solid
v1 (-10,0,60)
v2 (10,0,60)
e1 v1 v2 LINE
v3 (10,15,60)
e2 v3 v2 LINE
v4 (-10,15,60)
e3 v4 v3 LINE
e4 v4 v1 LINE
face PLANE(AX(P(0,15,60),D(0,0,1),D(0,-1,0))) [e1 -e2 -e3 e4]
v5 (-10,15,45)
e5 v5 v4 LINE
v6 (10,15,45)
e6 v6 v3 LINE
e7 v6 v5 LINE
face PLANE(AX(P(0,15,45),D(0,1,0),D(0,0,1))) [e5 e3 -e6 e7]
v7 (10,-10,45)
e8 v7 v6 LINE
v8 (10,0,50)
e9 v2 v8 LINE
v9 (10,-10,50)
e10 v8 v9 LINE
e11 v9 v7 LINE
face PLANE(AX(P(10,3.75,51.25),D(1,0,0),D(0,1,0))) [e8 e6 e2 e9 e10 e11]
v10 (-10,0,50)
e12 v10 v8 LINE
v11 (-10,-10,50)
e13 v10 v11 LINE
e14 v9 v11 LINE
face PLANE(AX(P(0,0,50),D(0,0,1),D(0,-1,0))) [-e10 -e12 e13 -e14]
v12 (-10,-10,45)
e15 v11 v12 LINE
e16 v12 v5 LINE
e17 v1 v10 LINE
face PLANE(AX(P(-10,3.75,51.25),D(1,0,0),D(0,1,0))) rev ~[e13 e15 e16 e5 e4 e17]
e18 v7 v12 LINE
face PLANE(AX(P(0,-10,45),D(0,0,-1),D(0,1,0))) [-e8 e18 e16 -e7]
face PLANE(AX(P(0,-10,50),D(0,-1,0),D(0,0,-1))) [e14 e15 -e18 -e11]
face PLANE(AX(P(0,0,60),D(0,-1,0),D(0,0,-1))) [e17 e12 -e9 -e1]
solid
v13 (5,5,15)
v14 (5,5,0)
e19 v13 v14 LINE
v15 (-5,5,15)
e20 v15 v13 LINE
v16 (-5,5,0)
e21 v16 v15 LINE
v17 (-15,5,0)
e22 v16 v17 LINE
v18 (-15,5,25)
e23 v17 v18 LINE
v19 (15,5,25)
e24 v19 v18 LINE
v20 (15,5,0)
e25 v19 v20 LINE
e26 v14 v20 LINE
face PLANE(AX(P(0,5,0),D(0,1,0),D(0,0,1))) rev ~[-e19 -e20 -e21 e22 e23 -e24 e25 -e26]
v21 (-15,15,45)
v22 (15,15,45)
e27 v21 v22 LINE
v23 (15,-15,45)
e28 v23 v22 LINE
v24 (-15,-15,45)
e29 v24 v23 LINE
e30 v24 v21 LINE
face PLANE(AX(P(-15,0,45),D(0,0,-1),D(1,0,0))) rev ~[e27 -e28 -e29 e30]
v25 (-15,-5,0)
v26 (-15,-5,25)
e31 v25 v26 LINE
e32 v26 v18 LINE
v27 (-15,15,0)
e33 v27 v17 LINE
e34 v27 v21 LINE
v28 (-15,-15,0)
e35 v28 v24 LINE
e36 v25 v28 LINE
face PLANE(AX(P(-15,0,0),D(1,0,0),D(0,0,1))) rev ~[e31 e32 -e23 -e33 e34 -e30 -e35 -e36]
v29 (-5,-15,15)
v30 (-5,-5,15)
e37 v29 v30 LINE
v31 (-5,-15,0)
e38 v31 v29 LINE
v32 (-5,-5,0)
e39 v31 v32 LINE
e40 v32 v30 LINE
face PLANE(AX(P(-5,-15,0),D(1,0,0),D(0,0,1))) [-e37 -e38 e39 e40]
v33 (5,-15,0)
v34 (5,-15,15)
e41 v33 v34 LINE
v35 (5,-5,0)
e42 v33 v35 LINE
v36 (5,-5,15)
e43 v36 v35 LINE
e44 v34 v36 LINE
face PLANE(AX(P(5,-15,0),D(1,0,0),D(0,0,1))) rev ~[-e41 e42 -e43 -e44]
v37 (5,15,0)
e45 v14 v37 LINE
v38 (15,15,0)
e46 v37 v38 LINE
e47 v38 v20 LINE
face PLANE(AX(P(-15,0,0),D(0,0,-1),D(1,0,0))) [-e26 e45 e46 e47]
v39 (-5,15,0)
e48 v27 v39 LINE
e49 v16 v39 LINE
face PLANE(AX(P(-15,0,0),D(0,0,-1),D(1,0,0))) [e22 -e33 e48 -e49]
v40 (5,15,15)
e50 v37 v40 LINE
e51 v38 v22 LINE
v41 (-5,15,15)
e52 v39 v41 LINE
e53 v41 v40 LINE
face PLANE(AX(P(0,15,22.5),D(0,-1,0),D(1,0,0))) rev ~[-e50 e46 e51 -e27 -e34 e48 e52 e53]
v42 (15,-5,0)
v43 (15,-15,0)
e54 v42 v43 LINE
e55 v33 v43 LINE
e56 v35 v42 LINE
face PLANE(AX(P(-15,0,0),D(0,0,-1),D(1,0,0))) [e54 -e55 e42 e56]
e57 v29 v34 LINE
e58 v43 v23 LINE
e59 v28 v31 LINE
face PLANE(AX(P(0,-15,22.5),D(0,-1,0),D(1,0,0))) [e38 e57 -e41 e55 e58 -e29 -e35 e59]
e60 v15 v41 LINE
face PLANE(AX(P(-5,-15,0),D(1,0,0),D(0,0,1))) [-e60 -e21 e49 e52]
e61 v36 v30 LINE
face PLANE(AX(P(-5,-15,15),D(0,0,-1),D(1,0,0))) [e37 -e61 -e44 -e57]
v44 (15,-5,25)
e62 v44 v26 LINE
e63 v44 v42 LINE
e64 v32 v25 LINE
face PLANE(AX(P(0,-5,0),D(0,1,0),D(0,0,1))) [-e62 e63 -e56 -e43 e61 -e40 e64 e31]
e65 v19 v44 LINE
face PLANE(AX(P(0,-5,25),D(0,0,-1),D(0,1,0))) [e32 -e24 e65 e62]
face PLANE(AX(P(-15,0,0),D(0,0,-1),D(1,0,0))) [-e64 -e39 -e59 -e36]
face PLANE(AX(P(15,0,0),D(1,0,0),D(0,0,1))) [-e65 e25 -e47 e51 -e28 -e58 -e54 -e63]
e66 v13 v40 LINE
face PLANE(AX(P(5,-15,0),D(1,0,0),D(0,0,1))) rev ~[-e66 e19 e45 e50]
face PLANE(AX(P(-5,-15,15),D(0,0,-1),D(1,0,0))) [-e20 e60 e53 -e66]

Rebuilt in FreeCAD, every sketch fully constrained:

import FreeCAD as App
import Part
import Sketcher
from FreeCAD import Vector

doc = App.newDocument("Part")
body = doc.addObject("PartDesign::Body", "Body")

# Sketch on XZ plane
sketch1 = doc.addObject("Sketcher::SketchObject", "Sketch")
body.addObject(sketch1)
sketch1.AttachmentSupport = (doc.XZ_Plane, [""])
sketch1.MapMode = "FlatFace"
sketch1.addGeometry([
    Part.LineSegment(Vector(-15, 45, 0), Vector(-15, 0, 0)),
    Part.LineSegment(Vector(-15, 0, 0), Vector(15, 0, 0)),
    Part.LineSegment(Vector(15, 0, 0), Vector(15, 45, 0)),
    Part.LineSegment(Vector(15, 45, 0), Vector(-15, 45, 0)),
], False)
sketch1.addConstraint([
    Sketcher.Constraint("Coincident", 0, 2, 1, 1),
    Sketcher.Constraint("Coincident", 1, 2, 2, 1),
    Sketcher.Constraint("Coincident", 2, 2, 3, 1),
    Sketcher.Constraint("Coincident", 3, 2, 0, 1),
    Sketcher.Constraint("Vertical", 0),
    Sketcher.Constraint("Horizontal", 1),
    Sketcher.Constraint("Vertical", 2),
    Sketcher.Constraint("Horizontal", 3),
    Sketcher.Constraint("Symmetric", 0, 2, 1, 2, -1, 1),
    Sketcher.Constraint("DistanceX", 1, 1, 1, 2, 30.0),
    Sketcher.Constraint("DistanceY", 0, 2, 0, 1, 45.0),
])
pad1 = doc.addObject("PartDesign::Pad", "Pad")
body.addObject(pad1)
pad1.Profile = sketch1
pad1.Length = 30
pad1.Midplane = True

# Sketch on XZ plane
sketch2 = doc.addObject("Sketcher::SketchObject", "Sketch001")
body.addObject(sketch2)
sketch2.AttachmentSupport = (doc.XZ_Plane, [""])
sketch2.MapMode = "FlatFace"
sketch2.AttachmentOffset = App.Placement(Vector(0, 0, 15), App.Rotation())
sketch2.addGeometry([
    Part.LineSegment(Vector(-5, 15, 0), Vector(-5, 0, 0)),
    Part.LineSegment(Vector(-5, 0, 0), Vector(5, 0, 0)),
    Part.LineSegment(Vector(5, 0, 0), Vector(5, 15, 0)),
    Part.LineSegment(Vector(5, 15, 0), Vector(-5, 15, 0)),
], False)
sketch2.addConstraint([
    Sketcher.Constraint("Coincident", 0, 2, 1, 1),
    Sketcher.Constraint("Coincident", 1, 2, 2, 1),
    Sketcher.Constraint("Coincident", 2, 2, 3, 1),
    Sketcher.Constraint("Coincident", 3, 2, 0, 1),
    Sketcher.Constraint("Vertical", 0),
    Sketcher.Constraint("Horizontal", 1),
    Sketcher.Constraint("Vertical", 2),
    Sketcher.Constraint("Horizontal", 3),
    Sketcher.Constraint("Symmetric", 0, 2, 1, 2, -1, 1),
    Sketcher.Constraint("DistanceX", 1, 1, 1, 2, 10.0),
    Sketcher.Constraint("DistanceY", 0, 2, 0, 1, 15.0),
])
pocket1 = doc.addObject("PartDesign::Pocket", "Pocket")
body.addObject(pocket1)
pocket1.Profile = sketch2
pocket1.Type = "ThroughAll"

# Sketch on YZ plane
sketch3 = doc.addObject("Sketcher::SketchObject", "Sketch002")
body.addObject(sketch3)
sketch3.AttachmentSupport = (doc.YZ_Plane, [""])
sketch3.MapMode = "FlatFace"
sketch3.addGeometry([
    Part.LineSegment(Vector(-5, 25, 0), Vector(-5, 0, 0)),
    Part.LineSegment(Vector(-5, 0, 0), Vector(5, 0, 0)),
    Part.LineSegment(Vector(5, 0, 0), Vector(5, 25, 0)),
    Part.LineSegment(Vector(5, 25, 0), Vector(-5, 25, 0)),
], False)
sketch3.addConstraint([
    Sketcher.Constraint("Coincident", 0, 2, 1, 1),
    Sketcher.Constraint("Coincident", 1, 2, 2, 1),
    Sketcher.Constraint("Coincident", 2, 2, 3, 1),
    Sketcher.Constraint("Coincident", 3, 2, 0, 1),
    Sketcher.Constraint("Vertical", 0),
    Sketcher.Constraint("Horizontal", 1),
    Sketcher.Constraint("Vertical", 2),
    Sketcher.Constraint("Horizontal", 3),
    Sketcher.Constraint("Symmetric", 0, 2, 1, 2, -1, 1),
    Sketcher.Constraint("DistanceX", 1, 1, 1, 2, 10.0),
    Sketcher.Constraint("DistanceY", 0, 2, 0, 1, 25.0),
])
pocket2 = doc.addObject("PartDesign::Pocket", "Pocket001")
body.addObject(pocket2)
pocket2.Profile = sketch3
pocket2.Type = "ThroughAll"
pocket2.Midplane = True
body2 = doc.addObject("PartDesign::Body", "Body001")

# Sketch on YZ plane
sketch4 = doc.addObject("Sketcher::SketchObject", "Sketch003")
body2.addObject(sketch4)
sketch4.AttachmentSupport = (doc.getObject("YZ_Plane001"), [""])
sketch4.MapMode = "FlatFace"
sketch4.addGeometry([
    Part.LineSegment(Vector(15, 45, 0), Vector(15, 60, 0)),  # 0
    Part.LineSegment(Vector(15, 60, 0), Vector(0, 60, 0)),  # 1
    Part.LineSegment(Vector(0, 60, 0), Vector(0, 50, 0)),  # 2
    Part.LineSegment(Vector(0, 50, 0), Vector(-10, 50, 0)),  # 3
    Part.LineSegment(Vector(-10, 50, 0), Vector(-10, 45, 0)),  # 4
    Part.LineSegment(Vector(-10, 45, 0), Vector(15, 45, 0)),  # 5
], False)
sketch4.addConstraint([
    Sketcher.Constraint("Coincident", 0, 2, 1, 1),
    Sketcher.Constraint("Coincident", 1, 2, 2, 1),
    Sketcher.Constraint("Coincident", 2, 2, 3, 1),
    Sketcher.Constraint("Coincident", 3, 2, 4, 1),
    Sketcher.Constraint("Coincident", 4, 2, 5, 1),
    Sketcher.Constraint("Coincident", 5, 2, 0, 1),
    Sketcher.Constraint("Vertical", 0),
    Sketcher.Constraint("Horizontal", 1),
    Sketcher.Constraint("Vertical", 2),
    Sketcher.Constraint("Horizontal", 3),
    Sketcher.Constraint("Vertical", 4),
    Sketcher.Constraint("Horizontal", 5),
    Sketcher.Constraint("PointOnObject", 1, 2, -2),
    Sketcher.Constraint("Equal", 1, 0),
    Sketcher.Constraint("Equal", 3, 2),
    Sketcher.Constraint("DistanceX", 1, 2, 1, 1, 15.0),
    Sketcher.Constraint("DistanceX", 3, 2, 3, 1, 10.0),
    Sketcher.Constraint("DistanceY", -1, 1, 0, 2, 60.0),
])
pad2 = doc.addObject("PartDesign::Pad", "Pad001")
body2.addObject(pad2)
pad2.Profile = sketch4
pad2.Length = 20
pad2.Midplane = True

doc.recompute()
